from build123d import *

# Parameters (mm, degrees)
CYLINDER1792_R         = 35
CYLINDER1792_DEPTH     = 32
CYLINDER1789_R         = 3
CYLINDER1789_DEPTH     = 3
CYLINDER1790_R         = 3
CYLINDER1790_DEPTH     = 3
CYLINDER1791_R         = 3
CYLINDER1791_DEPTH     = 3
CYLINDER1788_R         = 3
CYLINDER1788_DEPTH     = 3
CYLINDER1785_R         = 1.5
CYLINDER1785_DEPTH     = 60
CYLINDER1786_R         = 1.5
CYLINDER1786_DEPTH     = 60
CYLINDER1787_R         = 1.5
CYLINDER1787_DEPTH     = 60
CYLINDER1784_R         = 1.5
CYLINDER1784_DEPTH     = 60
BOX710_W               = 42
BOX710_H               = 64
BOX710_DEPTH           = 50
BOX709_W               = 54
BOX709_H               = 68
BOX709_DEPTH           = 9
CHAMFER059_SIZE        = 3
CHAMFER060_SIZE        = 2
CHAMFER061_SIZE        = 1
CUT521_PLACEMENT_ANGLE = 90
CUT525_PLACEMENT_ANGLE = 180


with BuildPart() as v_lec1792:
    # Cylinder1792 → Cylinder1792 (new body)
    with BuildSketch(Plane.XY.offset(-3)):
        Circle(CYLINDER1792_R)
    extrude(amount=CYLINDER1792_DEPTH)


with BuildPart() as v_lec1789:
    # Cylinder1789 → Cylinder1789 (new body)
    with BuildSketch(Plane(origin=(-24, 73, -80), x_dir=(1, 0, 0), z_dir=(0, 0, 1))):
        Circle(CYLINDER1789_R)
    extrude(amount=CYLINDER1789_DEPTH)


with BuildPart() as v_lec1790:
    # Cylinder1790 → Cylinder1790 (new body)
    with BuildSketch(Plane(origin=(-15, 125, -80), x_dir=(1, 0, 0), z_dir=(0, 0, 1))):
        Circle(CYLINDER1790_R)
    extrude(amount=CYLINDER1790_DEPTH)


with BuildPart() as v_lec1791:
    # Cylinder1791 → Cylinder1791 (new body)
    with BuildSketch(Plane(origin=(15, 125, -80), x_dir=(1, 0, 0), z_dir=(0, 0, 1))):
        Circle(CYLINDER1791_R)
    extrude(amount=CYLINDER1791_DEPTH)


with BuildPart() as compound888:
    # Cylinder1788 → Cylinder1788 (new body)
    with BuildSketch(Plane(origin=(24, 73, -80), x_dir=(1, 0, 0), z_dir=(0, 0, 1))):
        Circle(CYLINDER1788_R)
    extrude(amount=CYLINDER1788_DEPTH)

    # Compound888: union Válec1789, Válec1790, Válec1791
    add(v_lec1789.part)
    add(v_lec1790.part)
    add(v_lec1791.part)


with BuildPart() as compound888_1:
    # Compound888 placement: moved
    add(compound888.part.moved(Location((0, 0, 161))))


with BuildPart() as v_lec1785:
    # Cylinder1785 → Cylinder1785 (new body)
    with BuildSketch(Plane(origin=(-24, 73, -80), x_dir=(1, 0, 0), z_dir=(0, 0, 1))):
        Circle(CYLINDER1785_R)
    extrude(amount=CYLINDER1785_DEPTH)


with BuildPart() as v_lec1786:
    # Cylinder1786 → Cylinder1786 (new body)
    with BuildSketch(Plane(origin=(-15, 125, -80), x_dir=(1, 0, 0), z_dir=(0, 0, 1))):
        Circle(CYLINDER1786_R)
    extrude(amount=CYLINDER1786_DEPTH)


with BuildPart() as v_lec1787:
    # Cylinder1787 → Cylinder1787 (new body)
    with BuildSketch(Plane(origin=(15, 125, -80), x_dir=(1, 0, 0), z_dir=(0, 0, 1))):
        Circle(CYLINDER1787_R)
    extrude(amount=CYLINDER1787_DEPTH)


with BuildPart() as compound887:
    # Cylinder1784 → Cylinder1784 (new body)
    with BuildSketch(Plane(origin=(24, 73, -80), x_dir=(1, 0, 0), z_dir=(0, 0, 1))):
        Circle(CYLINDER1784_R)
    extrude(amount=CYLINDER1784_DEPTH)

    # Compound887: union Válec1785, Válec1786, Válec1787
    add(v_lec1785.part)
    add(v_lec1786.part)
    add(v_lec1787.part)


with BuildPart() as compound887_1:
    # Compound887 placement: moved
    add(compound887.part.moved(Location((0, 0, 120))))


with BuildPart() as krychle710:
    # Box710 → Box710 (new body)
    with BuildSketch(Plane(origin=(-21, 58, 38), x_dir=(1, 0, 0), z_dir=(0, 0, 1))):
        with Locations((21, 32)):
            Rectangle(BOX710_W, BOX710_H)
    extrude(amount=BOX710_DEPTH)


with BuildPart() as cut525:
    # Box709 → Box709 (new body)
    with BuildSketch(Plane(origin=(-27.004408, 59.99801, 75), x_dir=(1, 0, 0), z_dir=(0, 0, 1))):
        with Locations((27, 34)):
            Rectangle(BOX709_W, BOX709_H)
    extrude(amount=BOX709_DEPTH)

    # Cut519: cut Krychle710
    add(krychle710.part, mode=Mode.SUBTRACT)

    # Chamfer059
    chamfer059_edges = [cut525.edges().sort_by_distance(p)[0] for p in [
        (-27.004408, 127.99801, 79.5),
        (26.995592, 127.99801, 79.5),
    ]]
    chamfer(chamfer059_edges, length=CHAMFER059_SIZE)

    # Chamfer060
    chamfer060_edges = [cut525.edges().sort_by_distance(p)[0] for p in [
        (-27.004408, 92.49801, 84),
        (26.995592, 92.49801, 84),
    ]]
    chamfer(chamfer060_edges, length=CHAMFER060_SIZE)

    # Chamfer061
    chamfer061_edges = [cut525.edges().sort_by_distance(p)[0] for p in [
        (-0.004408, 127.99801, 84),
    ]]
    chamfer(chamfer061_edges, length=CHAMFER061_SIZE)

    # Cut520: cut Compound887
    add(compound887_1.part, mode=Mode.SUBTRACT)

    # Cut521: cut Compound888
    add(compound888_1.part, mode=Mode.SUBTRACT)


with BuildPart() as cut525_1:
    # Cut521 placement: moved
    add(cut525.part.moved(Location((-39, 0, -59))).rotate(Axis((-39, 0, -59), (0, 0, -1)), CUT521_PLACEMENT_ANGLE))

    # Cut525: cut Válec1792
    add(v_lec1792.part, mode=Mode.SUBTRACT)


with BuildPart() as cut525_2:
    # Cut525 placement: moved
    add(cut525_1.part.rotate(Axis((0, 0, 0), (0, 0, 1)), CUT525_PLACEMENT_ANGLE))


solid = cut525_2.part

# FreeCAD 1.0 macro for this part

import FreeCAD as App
import Part
import Sketcher
Q = App.Units.Quantity


def edges_at(feature, points):
    """Names of the edges that pass closest to the given points."""
    edges = feature.Shape.Edges
    near = lambda p: min(range(len(edges)), key=lambda i: edges[i].distToShape(Part.Vertex(*p))[0])
    return sorted({f"Edge{near(p) + 1}" for p in points})


def add_polygon(sketch, points):
    """Adds a closed chain of lines whose ends are joined by coincident constraints."""
    first, n = sketch.GeometryCount, len(points)
    for a, b in zip(points, points[1:] + points[:1]):
        sketch.addGeometry(Part.LineSegment(App.Vector(*a, 0), App.Vector(*b, 0)), False)
    for i in range(n):
        sketch.addConstraint(Sketcher.Constraint("Coincident", first + i, 2, first + (i + 1) % n, 1))

doc = App.newDocument("Part")
body = doc.addObject("PartDesign::Body", "Body")

# Sketch on XY plane
sketch1 = body.newObject("Sketcher::SketchObject", "Sketch")
sketch1.AttachmentSupport = (doc.getObject("XY_Plane"), [""])
sketch1.MapMode = "FlatFace"
sketch1.AttachmentOffset = App.Placement(App.Vector(0, 0, -3), App.Rotation())
sketch1.addGeometry(Part.Circle(App.Vector(0, 0, 0), App.Vector(0, 0, 1), 35), False)
sketch1.addConstraint([
    Sketcher.Constraint("Coincident", 0, 3, -1, 1),
    Sketcher.Constraint("Diameter", 0, Q("70 mm")),
])
pad1 = body.newObject("PartDesign::Pad", "Pad")
pad1.Profile = sketch1
pad1.Length = 32
body2 = doc.addObject("PartDesign::Body", "Body001")

# Sketch on XY plane
sketch2 = body2.newObject("Sketcher::SketchObject", "Sketch001")
sketch2.AttachmentSupport = (doc.getObject("XY_Plane001"), [""])
sketch2.MapMode = "FlatFace"
sketch2.AttachmentOffset = App.Placement(App.Vector(0, 0, -80), App.Rotation())
sketch2.addGeometry(Part.Circle(App.Vector(-24, 73, 0), App.Vector(0, 0, 1), 3), False)
sketch2.addConstraint([
    Sketcher.Constraint("Diameter", 0, Q("6 mm")),
    Sketcher.Constraint("DistanceX", 0, 3, -1, 1, Q("24 mm")),
    Sketcher.Constraint("DistanceY", -1, 1, 0, 3, Q("73 mm")),
])
pad2 = body2.newObject("PartDesign::Pad", "Pad001")
pad2.Profile = sketch2
pad2.Length = 3
body3 = doc.addObject("PartDesign::Body", "Body002")

# Sketch on XY plane
sketch3 = body3.newObject("Sketcher::SketchObject", "Sketch002")
sketch3.AttachmentSupport = (doc.getObject("XY_Plane002"), [""])
sketch3.MapMode = "FlatFace"
sketch3.AttachmentOffset = App.Placement(App.Vector(0, 0, -80), App.Rotation())
sketch3.addGeometry(Part.Circle(App.Vector(-15, 125, 0), App.Vector(0, 0, 1), 3), False)
sketch3.addConstraint([
    Sketcher.Constraint("Diameter", 0, Q("6 mm")),
    Sketcher.Constraint("DistanceX", 0, 3, -1, 1, Q("15 mm")),
    Sketcher.Constraint("DistanceY", -1, 1, 0, 3, Q("125 mm")),
])
pad3 = body3.newObject("PartDesign::Pad", "Pad002")
pad3.Profile = sketch3
pad3.Length = 3
body4 = doc.addObject("PartDesign::Body", "Body003")

# Sketch on XY plane
sketch4 = body4.newObject("Sketcher::SketchObject", "Sketch003")
sketch4.AttachmentSupport = (doc.getObject("XY_Plane003"), [""])
sketch4.MapMode = "FlatFace"
sketch4.AttachmentOffset = App.Placement(App.Vector(0, 0, -80), App.Rotation())
sketch4.addGeometry(Part.Circle(App.Vector(15, 125, 0), App.Vector(0, 0, 1), 3), False)
sketch4.addConstraint([
    Sketcher.Constraint("Diameter", 0, Q("6 mm")),
    Sketcher.Constraint("DistanceX", -1, 1, 0, 3, Q("15 mm")),
    Sketcher.Constraint("DistanceY", -1, 1, 0, 3, Q("125 mm")),
])
pad4 = body4.newObject("PartDesign::Pad", "Pad003")
pad4.Profile = sketch4
pad4.Length = 3
body5 = doc.addObject("PartDesign::Body", "Body004")
body5.AllowCompound = True

# Sketch on XY plane
sketch5 = body5.newObject("Sketcher::SketchObject", "Sketch004")
sketch5.AttachmentSupport = (doc.getObject("XY_Plane004"), [""])
sketch5.MapMode = "FlatFace"
sketch5.AttachmentOffset = App.Placement(App.Vector(0, 0, -80), App.Rotation())
sketch5.addGeometry(Part.Circle(App.Vector(24, 73, 0), App.Vector(0, 0, 1), 3), False)
sketch5.addConstraint([
    Sketcher.Constraint("Diameter", 0, Q("6 mm")),
    Sketcher.Constraint("DistanceX", -1, 1, 0, 3, Q("24 mm")),
    Sketcher.Constraint("DistanceY", -1, 1, 0, 3, Q("73 mm")),
])
pad5 = body5.newObject("PartDesign::Pad", "Pad004")
pad5.Profile = sketch5
pad5.Length = 3
doc.recompute()

boolean = body5.newObject("PartDesign::Boolean", "Boolean")
boolean.Type = "Fuse"
boolean.addObjects([body2])
doc.recompute()

boolean2 = body5.newObject("PartDesign::Boolean", "Boolean001")
boolean2.Type = "Fuse"
boolean2.addObjects([body3])
doc.recompute()

boolean3 = body5.newObject("PartDesign::Boolean", "Boolean002")
boolean3.Type = "Fuse"
boolean3.addObjects([body4])
body6 = doc.addObject("PartDesign::Body", "Body005")
body6.AllowCompound = True
doc.recompute()

body5.Placement = App.Placement(App.Vector(0, 0, 161), App.Rotation(App.Vector(0, 0, 1), 0))
boolean4 = body6.newObject("PartDesign::Boolean", "Boolean003")
boolean4.Type = "Fuse"
boolean4.addObjects([body5])
body7 = doc.addObject("PartDesign::Body", "Body006")

# Sketch on XY plane
sketch6 = body7.newObject("Sketcher::SketchObject", "Sketch005")
sketch6.AttachmentSupport = (doc.getObject("XY_Plane006"), [""])
sketch6.MapMode = "FlatFace"
sketch6.AttachmentOffset = App.Placement(App.Vector(0, 0, -80), App.Rotation())
sketch6.addGeometry(Part.Circle(App.Vector(-24, 73, 0), App.Vector(0, 0, 1), 1.5), False)
sketch6.addConstraint([
    Sketcher.Constraint("Diameter", 0, Q("3 mm")),
    Sketcher.Constraint("DistanceX", 0, 3, -1, 1, Q("24 mm")),
    Sketcher.Constraint("DistanceY", -1, 1, 0, 3, Q("73 mm")),
])
pad6 = body7.newObject("PartDesign::Pad", "Pad005")
pad6.Profile = sketch6
pad6.Length = 60
body8 = doc.addObject("PartDesign::Body", "Body007")

# Sketch on XY plane
sketch7 = body8.newObject("Sketcher::SketchObject", "Sketch006")
sketch7.AttachmentSupport = (doc.getObject("XY_Plane007"), [""])
sketch7.MapMode = "FlatFace"
sketch7.AttachmentOffset = App.Placement(App.Vector(0, 0, -80), App.Rotation())
sketch7.addGeometry(Part.Circle(App.Vector(-15, 125, 0), App.Vector(0, 0, 1), 1.5), False)
sketch7.addConstraint([
    Sketcher.Constraint("Diameter", 0, Q("3 mm")),
    Sketcher.Constraint("DistanceX", 0, 3, -1, 1, Q("15 mm")),
    Sketcher.Constraint("DistanceY", -1, 1, 0, 3, Q("125 mm")),
])
pad7 = body8.newObject("PartDesign::Pad", "Pad006")
pad7.Profile = sketch7
pad7.Length = 60
body9 = doc.addObject("PartDesign::Body", "Body008")

# Sketch on XY plane
sketch8 = body9.newObject("Sketcher::SketchObject", "Sketch007")
sketch8.AttachmentSupport = (doc.getObject("XY_Plane008"), [""])
sketch8.MapMode = "FlatFace"
sketch8.AttachmentOffset = App.Placement(App.Vector(0, 0, -80), App.Rotation())
sketch8.addGeometry(Part.Circle(App.Vector(15, 125, 0), App.Vector(0, 0, 1), 1.5), False)
sketch8.addConstraint([
    Sketcher.Constraint("Diameter", 0, Q("3 mm")),
    Sketcher.Constraint("DistanceX", -1, 1, 0, 3, Q("15 mm")),
    Sketcher.Constraint("DistanceY", -1, 1, 0, 3, Q("125 mm")),
])
pad8 = body9.newObject("PartDesign::Pad", "Pad007")
pad8.Profile = sketch8
pad8.Length = 60
body10 = doc.addObject("PartDesign::Body", "Body009")
body10.AllowCompound = True

# Sketch on XY plane
sketch9 = body10.newObject("Sketcher::SketchObject", "Sketch008")
sketch9.AttachmentSupport = (doc.getObject("XY_Plane009"), [""])
sketch9.MapMode = "FlatFace"
sketch9.AttachmentOffset = App.Placement(App.Vector(0, 0, -80), App.Rotation())
sketch9.addGeometry(Part.Circle(App.Vector(24, 73, 0), App.Vector(0, 0, 1), 1.5), False)
sketch9.addConstraint([
    Sketcher.Constraint("Diameter", 0, Q("3 mm")),
    Sketcher.Constraint("DistanceX", -1, 1, 0, 3, Q("24 mm")),
    Sketcher.Constraint("DistanceY", -1, 1, 0, 3, Q("73 mm")),
])
pad9 = body10.newObject("PartDesign::Pad", "Pad008")
pad9.Profile = sketch9
pad9.Length = 60
doc.recompute()

boolean5 = body10.newObject("PartDesign::Boolean", "Boolean004")
boolean5.Type = "Fuse"
boolean5.addObjects([body7])
doc.recompute()

boolean6 = body10.newObject("PartDesign::Boolean", "Boolean005")
boolean6.Type = "Fuse"
boolean6.addObjects([body8])
doc.recompute()

boolean7 = body10.newObject("PartDesign::Boolean", "Boolean006")
boolean7.Type = "Fuse"
boolean7.addObjects([body9])
body11 = doc.addObject("PartDesign::Body", "Body010")
body11.AllowCompound = True
doc.recompute()

body10.Placement = App.Placement(App.Vector(0, 0, 120), App.Rotation(App.Vector(0, 0, 1), 0))
boolean8 = body11.newObject("PartDesign::Boolean", "Boolean007")
boolean8.Type = "Fuse"
boolean8.addObjects([body10])
body12 = doc.addObject("PartDesign::Body", "Body011")

# Sketch on XY plane
sketch10 = body12.newObject("Sketcher::SketchObject", "Sketch009")
sketch10.AttachmentSupport = (doc.getObject("XY_Plane011"), [""])
sketch10.MapMode = "FlatFace"
sketch10.AttachmentOffset = App.Placement(App.Vector(0, 0, 38), App.Rotation())
add_polygon(sketch10, [(-21, 122), (-21, 58), (21, 58), (21, 122)])  # lines 0-3
sketch10.addConstraint([
    Sketcher.Constraint("Vertical", 0),
    Sketcher.Constraint("Horizontal", 1),
    Sketcher.Constraint("Vertical", 2),
    Sketcher.Constraint("Horizontal", 3),
    Sketcher.Constraint("DistanceX", 1, 1, 1, 2, Q("42 mm")),
    Sketcher.Constraint("DistanceY", 0, 2, 0, 1, Q("64 mm")),
    Sketcher.Constraint("DistanceX", 0, 2, -1, 1, Q("21 mm")),
    Sketcher.Constraint("DistanceY", -1, 1, 0, 2, Q("58 mm")),
])
pad10 = body12.newObject("PartDesign::Pad", "Pad009")
pad10.Profile = sketch10
pad10.Length = 50
body13 = doc.addObject("PartDesign::Body", "Body012")

# Sketch on XY plane
sketch11 = body13.newObject("Sketcher::SketchObject", "Sketch010")
sketch11.AttachmentSupport = (doc.getObject("XY_Plane012"), [""])
sketch11.MapMode = "FlatFace"
sketch11.AttachmentOffset = App.Placement(App.Vector(0, 0, 75), App.Rotation())
add_polygon(sketch11, [(-27.004408, 127.99801), (-27.004408, 59.99801), (26.995592, 59.99801), (26.995592, 127.99801)])  # lines 0-3
sketch11.addConstraint([
    Sketcher.Constraint("Vertical", 0),
    Sketcher.Constraint("Horizontal", 1),
    Sketcher.Constraint("Vertical", 2),
    Sketcher.Constraint("Horizontal", 3),
    Sketcher.Constraint("DistanceX", 1, 1, 1, 2, Q("54 mm")),
    Sketcher.Constraint("DistanceY", 0, 2, 0, 1, Q("68 mm")),
    Sketcher.Constraint("DistanceX", 0, 2, -1, 1, Q("27.004408 mm")),
    Sketcher.Constraint("DistanceY", -1, 1, 0, 2, Q("59.99801 mm")),
])
pad11 = body13.newObject("PartDesign::Pad", "Pad010")
pad11.Profile = sketch11
pad11.Length = 9
doc.recompute()

boolean9 = body13.newObject("PartDesign::Boolean", "Boolean008")
boolean9.Type = "Cut"
boolean9.addObjects([body12])
doc.recompute()

chamfer = body13.newObject("PartDesign::Chamfer", "Chamfer")
chamfer.Base = (boolean9, edges_at(boolean9, [(-27.004, 127.998, 79.5), (26.996, 127.998, 79.5)]))
chamfer.Size = 3
doc.recompute()

chamfer2 = body13.newObject("PartDesign::Chamfer", "Chamfer001")
chamfer2.Base = (chamfer, edges_at(chamfer, [(-27.004, 92.498, 84), (26.996, 92.498, 84)]))
chamfer2.Size = 2
doc.recompute()

chamfer3 = body13.newObject("PartDesign::Chamfer", "Chamfer002")
chamfer3.Base = (chamfer2, edges_at(chamfer2, [(-0.004, 127.998, 84)]))
chamfer3.Size = 1
doc.recompute()

boolean10 = body13.newObject("PartDesign::Boolean", "Boolean009")
boolean10.Type = "Cut"
boolean10.addObjects([body11])
doc.recompute()

boolean11 = body13.newObject("PartDesign::Boolean", "Boolean010")
boolean11.Type = "Cut"
boolean11.addObjects([body6])
body14 = doc.addObject("PartDesign::Body", "Body013")
doc.recompute()

body13.Placement = App.Placement(App.Vector(-39, 0, -59), App.Rotation(App.Vector(0, 0, -1), 90))
boolean12 = body14.newObject("PartDesign::Boolean", "Boolean011")
boolean12.Type = "Fuse"
boolean12.addObjects([body13])
doc.recompute()

boolean13 = body14.newObject("PartDesign::Boolean", "Boolean012")
boolean13.Type = "Cut"
boolean13.addObjects([body])
body15 = doc.addObject("PartDesign::Body", "Body014")
doc.recompute()

body14.Placement = App.Placement(App.Vector(0, 0, 0), App.Rotation(App.Vector(0, 0, 1), 180))
boolean14 = body15.newObject("PartDesign::Boolean", "Boolean013")
boolean14.Type = "Fuse"
boolean14.addObjects([body14])

doc.recompute()
